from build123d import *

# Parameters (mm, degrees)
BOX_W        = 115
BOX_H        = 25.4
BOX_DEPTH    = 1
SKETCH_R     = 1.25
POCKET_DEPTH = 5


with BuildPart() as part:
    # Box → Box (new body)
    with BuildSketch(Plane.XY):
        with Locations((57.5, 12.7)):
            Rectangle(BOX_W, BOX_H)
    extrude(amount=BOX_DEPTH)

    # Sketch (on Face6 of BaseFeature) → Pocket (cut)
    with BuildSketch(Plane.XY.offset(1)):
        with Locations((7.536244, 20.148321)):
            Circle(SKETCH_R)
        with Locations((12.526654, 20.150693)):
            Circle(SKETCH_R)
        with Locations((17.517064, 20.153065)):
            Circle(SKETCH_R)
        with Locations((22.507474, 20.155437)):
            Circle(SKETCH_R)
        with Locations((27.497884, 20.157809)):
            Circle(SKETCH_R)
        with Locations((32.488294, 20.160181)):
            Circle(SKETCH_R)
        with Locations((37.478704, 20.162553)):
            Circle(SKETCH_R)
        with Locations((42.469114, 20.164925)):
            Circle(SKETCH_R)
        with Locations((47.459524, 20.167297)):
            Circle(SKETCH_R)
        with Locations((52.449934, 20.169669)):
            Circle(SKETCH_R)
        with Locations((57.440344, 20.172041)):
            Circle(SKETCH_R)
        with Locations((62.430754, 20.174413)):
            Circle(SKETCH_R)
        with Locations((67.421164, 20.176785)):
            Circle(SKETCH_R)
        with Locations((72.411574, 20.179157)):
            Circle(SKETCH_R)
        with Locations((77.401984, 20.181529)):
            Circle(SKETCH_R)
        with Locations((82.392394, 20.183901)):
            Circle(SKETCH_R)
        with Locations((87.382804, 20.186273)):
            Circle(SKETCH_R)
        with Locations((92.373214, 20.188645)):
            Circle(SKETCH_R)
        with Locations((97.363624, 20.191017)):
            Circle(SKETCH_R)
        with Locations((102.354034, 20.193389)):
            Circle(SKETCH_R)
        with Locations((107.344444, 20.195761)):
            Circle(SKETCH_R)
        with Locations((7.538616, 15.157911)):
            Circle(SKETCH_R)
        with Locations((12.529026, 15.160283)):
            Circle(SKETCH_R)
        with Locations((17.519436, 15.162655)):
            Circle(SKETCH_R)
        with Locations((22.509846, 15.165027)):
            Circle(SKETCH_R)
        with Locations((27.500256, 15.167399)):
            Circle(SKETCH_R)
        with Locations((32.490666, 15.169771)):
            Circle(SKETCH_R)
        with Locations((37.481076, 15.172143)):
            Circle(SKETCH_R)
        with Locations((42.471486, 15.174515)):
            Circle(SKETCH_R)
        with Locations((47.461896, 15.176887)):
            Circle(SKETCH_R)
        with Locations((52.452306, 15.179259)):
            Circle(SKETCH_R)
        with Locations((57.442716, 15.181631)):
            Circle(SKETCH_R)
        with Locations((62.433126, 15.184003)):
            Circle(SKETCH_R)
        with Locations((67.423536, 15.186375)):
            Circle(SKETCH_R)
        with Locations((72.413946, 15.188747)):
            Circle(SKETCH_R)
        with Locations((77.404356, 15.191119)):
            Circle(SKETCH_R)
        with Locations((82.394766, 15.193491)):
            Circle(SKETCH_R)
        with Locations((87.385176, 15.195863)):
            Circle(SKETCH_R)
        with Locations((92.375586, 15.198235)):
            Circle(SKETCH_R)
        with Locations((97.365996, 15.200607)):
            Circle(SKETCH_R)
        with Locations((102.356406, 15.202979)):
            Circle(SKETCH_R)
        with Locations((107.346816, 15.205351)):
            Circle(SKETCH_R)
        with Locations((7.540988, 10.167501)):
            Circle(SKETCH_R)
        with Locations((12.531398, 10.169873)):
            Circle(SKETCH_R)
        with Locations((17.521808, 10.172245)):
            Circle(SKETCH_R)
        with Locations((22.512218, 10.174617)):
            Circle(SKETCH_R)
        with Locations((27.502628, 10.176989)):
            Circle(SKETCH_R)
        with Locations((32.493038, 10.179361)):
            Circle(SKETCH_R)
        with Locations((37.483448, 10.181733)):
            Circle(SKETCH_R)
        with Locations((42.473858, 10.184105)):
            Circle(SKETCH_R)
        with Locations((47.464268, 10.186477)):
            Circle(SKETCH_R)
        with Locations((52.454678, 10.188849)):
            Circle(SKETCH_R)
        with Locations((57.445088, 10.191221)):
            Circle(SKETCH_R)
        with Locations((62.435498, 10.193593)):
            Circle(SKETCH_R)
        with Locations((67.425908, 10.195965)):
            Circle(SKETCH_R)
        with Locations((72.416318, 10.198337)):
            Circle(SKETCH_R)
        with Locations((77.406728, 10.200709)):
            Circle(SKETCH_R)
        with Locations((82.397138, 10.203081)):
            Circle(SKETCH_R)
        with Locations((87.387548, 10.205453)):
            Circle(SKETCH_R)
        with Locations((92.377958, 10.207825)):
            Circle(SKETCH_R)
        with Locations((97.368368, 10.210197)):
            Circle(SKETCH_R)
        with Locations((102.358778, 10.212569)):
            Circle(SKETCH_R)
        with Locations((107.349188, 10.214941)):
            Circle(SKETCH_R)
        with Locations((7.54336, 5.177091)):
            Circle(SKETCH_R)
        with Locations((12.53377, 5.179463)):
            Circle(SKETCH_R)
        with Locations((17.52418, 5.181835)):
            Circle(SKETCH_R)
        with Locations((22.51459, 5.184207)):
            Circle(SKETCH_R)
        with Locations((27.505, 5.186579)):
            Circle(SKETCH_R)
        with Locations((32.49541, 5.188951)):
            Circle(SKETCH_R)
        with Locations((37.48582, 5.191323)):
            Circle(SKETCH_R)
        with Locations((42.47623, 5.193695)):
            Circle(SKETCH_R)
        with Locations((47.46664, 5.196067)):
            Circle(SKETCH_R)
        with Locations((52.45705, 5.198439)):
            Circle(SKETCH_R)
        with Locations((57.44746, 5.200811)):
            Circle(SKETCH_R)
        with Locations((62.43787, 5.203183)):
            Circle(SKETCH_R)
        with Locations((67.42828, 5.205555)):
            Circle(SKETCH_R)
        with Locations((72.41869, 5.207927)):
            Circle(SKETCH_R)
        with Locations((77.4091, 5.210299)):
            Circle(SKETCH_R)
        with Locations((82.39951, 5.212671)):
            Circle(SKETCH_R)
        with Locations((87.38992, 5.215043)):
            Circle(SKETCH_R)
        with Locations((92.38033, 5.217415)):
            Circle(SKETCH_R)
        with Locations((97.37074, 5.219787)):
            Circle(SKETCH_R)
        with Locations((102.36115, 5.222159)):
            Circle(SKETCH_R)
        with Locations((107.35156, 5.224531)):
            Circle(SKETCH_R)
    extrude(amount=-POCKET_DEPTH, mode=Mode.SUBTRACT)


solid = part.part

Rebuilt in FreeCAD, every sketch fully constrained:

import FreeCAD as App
import Part
import Sketcher


def add_polygon(sketch, points):
    """Adds a closed chain of lines whose ends are joined by coincident constraints."""
    first, n = sketch.GeometryCount, len(points)
    for a, b in zip(points, points[1:] + points[:1]):
        sketch.addGeometry(Part.LineSegment(App.Vector(*a, 0), App.Vector(*b, 0)), False)
    for i in range(n):
        sketch.addConstraint(Sketcher.Constraint("Coincident", first + i, 2, first + (i + 1) % n, 1))

doc = App.newDocument("Part")
body = doc.addObject("PartDesign::Body", "Body")

# Sketch on XY plane
sketch1 = body.newObject("Sketcher::SketchObject", "Sketch")
sketch1.AttachmentSupport = (doc.getObject("XY_Plane"), [""])
sketch1.MapMode = "FlatFace"
add_polygon(sketch1, [(0, 25), (0, 0), (115, 0), (115, 25)])  # lines 0-3
sketch1.addConstraint([
    Sketcher.Constraint("Vertical", 0),
    Sketcher.Constraint("Horizontal", 1),
    Sketcher.Constraint("Vertical", 2),
    Sketcher.Constraint("Horizontal", 3),
    Sketcher.Constraint("Coincident", 0, 2, -1, 1),
    Sketcher.Constraint("DistanceX", 1, 1, 1, 2, 115.0),
    Sketcher.Constraint("DistanceY", 0, 2, 0, 1, 25.4),
])
pad1 = body.newObject("PartDesign::Pad", "Pad")
pad1.Profile = sketch1
pad1.Length = 1

# Sketch on XY plane
sketch2 = body.newObject("Sketcher::SketchObject", "Sketch001")
sketch2.AttachmentSupport = (doc.getObject("XY_Plane"), [""])
sketch2.MapMode = "FlatFace"
sketch2.AttachmentOffset = App.Placement(App.Vector(0, 0, 1), App.Rotation())
sketch2.addGeometry([
    Part.Circle(App.Vector(7.5, 20.1, 0), App.Vector(0, 0, 1), 1.2),  # 0
    Part.Circle(App.Vector(12.5, 20.2, 0), App.Vector(0, 0, 1), 1.2),  # 1
    Part.Circle(App.Vector(17.5, 20.2, 0), App.Vector(0, 0, 1), 1.2),  # 2
    Part.Circle(App.Vector(22.5, 20.2, 0), App.Vector(0, 0, 1), 1.2),  # 3
    Part.Circle(App.Vector(27.5, 20.2, 0), App.Vector(0, 0, 1), 1.2),  # 4
    Part.Circle(App.Vector(32.5, 20.2, 0), App.Vector(0, 0, 1), 1.2),  # 5
    Part.Circle(App.Vector(37.5, 20.2, 0), App.Vector(0, 0, 1), 1.2),  # 6
    Part.Circle(App.Vector(42.5, 20.2, 0), App.Vector(0, 0, 1), 1.2),  # 7
    Part.Circle(App.Vector(47.5, 20.2, 0), App.Vector(0, 0, 1), 1.2),  # 8
    Part.Circle(App.Vector(52.4, 20.2, 0), App.Vector(0, 0, 1), 1.2),  # 9
    Part.Circle(App.Vector(57.4, 20.2, 0), App.Vector(0, 0, 1), 1.2),  # 10
    Part.Circle(App.Vector(62.4, 20.2, 0), App.Vector(0, 0, 1), 1.2),  # 11
    Part.Circle(App.Vector(67.4, 20.2, 0), App.Vector(0, 0, 1), 1.2),  # 12
    Part.Circle(App.Vector(72.4, 20.2, 0), App.Vector(0, 0, 1), 1.2),  # 13
    Part.Circle(App.Vector(77.4, 20.2, 0), App.Vector(0, 0, 1), 1.2),  # 14
    Part.Circle(App.Vector(82.4, 20.2, 0), App.Vector(0, 0, 1), 1.2),  # 15
    Part.Circle(App.Vector(87.4, 20.2, 0), App.Vector(0, 0, 1), 1.2),  # 16
    Part.Circle(App.Vector(92.4, 20.2, 0), App.Vector(0, 0, 1), 1.2),  # 17
    Part.Circle(App.Vector(97.4, 20.2, 0), App.Vector(0, 0, 1), 1.2),  # 18
    Part.Circle(App.Vector(102.4, 20.2, 0), App.Vector(0, 0, 1), 1.2),  # 19
    Part.Circle(App.Vector(107.3, 20.2, 0), App.Vector(0, 0, 1), 1.2),  # 20
    Part.Circle(App.Vector(7.5, 15.2, 0), App.Vector(0, 0, 1), 1.2),  # 21
    Part.Circle(App.Vector(12.5, 15.2, 0), App.Vector(0, 0, 1), 1.2),  # 22
    Part.Circle(App.Vector(17.5, 15.2, 0), App.Vector(0, 0, 1), 1.2),  # 23
    Part.Circle(App.Vector(22.5, 15.2, 0), App.Vector(0, 0, 1), 1.2),  # 24
    Part.Circle(App.Vector(27.5, 15.2, 0), App.Vector(0, 0, 1), 1.2),  # 25
    Part.Circle(App.Vector(32.5, 15.2, 0), App.Vector(0, 0, 1), 1.2),  # 26
    Part.Circle(App.Vector(37.5, 15.2, 0), App.Vector(0, 0, 1), 1.2),  # 27
    Part.Circle(App.Vector(42.5, 15.2, 0), App.Vector(0, 0, 1), 1.2),  # 28
    Part.Circle(App.Vector(47.5, 15.2, 0), App.Vector(0, 0, 1), 1.2),  # 29
    Part.Circle(App.Vector(52.5, 15.2, 0), App.Vector(0, 0, 1), 1.2),  # 30
    Part.Circle(App.Vector(57.4, 15.2, 0), App.Vector(0, 0, 1), 1.2),  # 31
    Part.Circle(App.Vector(62.4, 15.2, 0), App.Vector(0, 0, 1), 1.2),  # 32
    Part.Circle(App.Vector(67.4, 15.2, 0), App.Vector(0, 0, 1), 1.2),  # 33
    Part.Circle(App.Vector(72.4, 15.2, 0), App.Vector(0, 0, 1), 1.2),  # 34
    Part.Circle(App.Vector(77.4, 15.2, 0), App.Vector(0, 0, 1), 1.2),  # 35
    Part.Circle(App.Vector(82.4, 15.2, 0), App.Vector(0, 0, 1), 1.2),  # 36
    Part.Circle(App.Vector(87.4, 15.2, 0), App.Vector(0, 0, 1), 1.2),  # 37
    Part.Circle(App.Vector(92.4, 15.2, 0), App.Vector(0, 0, 1), 1.2),  # 38
    Part.Circle(App.Vector(97.4, 15.2, 0), App.Vector(0, 0, 1), 1.2),  # 39
    Part.Circle(App.Vector(102.4, 15.2, 0), App.Vector(0, 0, 1), 1.2),  # 40
    Part.Circle(App.Vector(107.3, 15.2, 0), App.Vector(0, 0, 1), 1.2),  # 41
    Part.Circle(App.Vector(7.5, 10.2, 0), App.Vector(0, 0, 1), 1.2),  # 42
    Part.Circle(App.Vector(12.5, 10.2, 0), App.Vector(0, 0, 1), 1.2),  # 43
    Part.Circle(App.Vector(17.5, 10.2, 0), App.Vector(0, 0, 1), 1.2),  # 44
    Part.Circle(App.Vector(22.5, 10.2, 0), App.Vector(0, 0, 1), 1.2),  # 45
    Part.Circle(App.Vector(27.5, 10.2, 0), App.Vector(0, 0, 1), 1.2),  # 46
    Part.Circle(App.Vector(32.5, 10.2, 0), App.Vector(0, 0, 1), 1.2),  # 47
    Part.Circle(App.Vector(37.5, 10.2, 0), App.Vector(0, 0, 1), 1.2),  # 48
    Part.Circle(App.Vector(42.5, 10.2, 0), App.Vector(0, 0, 1), 1.2),  # 49
    Part.Circle(App.Vector(47.5, 10.2, 0), App.Vector(0, 0, 1), 1.2),  # 50
    Part.Circle(App.Vector(52.5, 10.2, 0), App.Vector(0, 0, 1), 1.2),  # 51
    Part.Circle(App.Vector(57.4, 10.2, 0), App.Vector(0, 0, 1), 1.2),  # 52
    Part.Circle(App.Vector(62.4, 10.2, 0), App.Vector(0, 0, 1), 1.2),  # 53
    Part.Circle(App.Vector(67.4, 10.2, 0), App.Vector(0, 0, 1), 1.2),  # 54
    Part.Circle(App.Vector(72.4, 10.2, 0), App.Vector(0, 0, 1), 1.2),  # 55
    Part.Circle(App.Vector(77.4, 10.2, 0), App.Vector(0, 0, 1), 1.2),  # 56
    Part.Circle(App.Vector(82.4, 10.2, 0), App.Vector(0, 0, 1), 1.2),  # 57
    Part.Circle(App.Vector(87.4, 10.2, 0), App.Vector(0, 0, 1), 1.2),  # 58
    Part.Circle(App.Vector(92.4, 10.2, 0), App.Vector(0, 0, 1), 1.2),  # 59
    Part.Circle(App.Vector(97.4, 10.2, 0), App.Vector(0, 0, 1), 1.2),  # 60
    Part.Circle(App.Vector(102.4, 10.2, 0), App.Vector(0, 0, 1), 1.2),  # 61
    Part.Circle(App.Vector(107.3, 10.2, 0), App.Vector(0, 0, 1), 1.2),  # 62
    Part.Circle(App.Vector(7.5, 5.2, 0), App.Vector(0, 0, 1), 1.2),  # 63
    Part.Circle(App.Vector(12.5, 5.2, 0), App.Vector(0, 0, 1), 1.2),  # 64
    Part.Circle(App.Vector(17.5, 5.2, 0), App.Vector(0, 0, 1), 1.2),  # 65
    Part.Circle(App.Vector(22.5, 5.2, 0), App.Vector(0, 0, 1), 1.2),  # 66
    Part.Circle(App.Vector(27.5, 5.2, 0), App.Vector(0, 0, 1), 1.2),  # 67
    Part.Circle(App.Vector(32.5, 5.2, 0), App.Vector(0, 0, 1), 1.2),  # 68
    Part.Circle(App.Vector(37.5, 5.2, 0), App.Vector(0, 0, 1), 1.2),  # 69
    Part.Circle(App.Vector(42.5, 5.2, 0), App.Vector(0, 0, 1), 1.2),  # 70
    Part.Circle(App.Vector(47.5, 5.2, 0), App.Vector(0, 0, 1), 1.2),  # 71
    Part.Circle(App.Vector(52.5, 5.2, 0), App.Vector(0, 0, 1), 1.2),  # 72
    Part.Circle(App.Vector(57.4, 5.2, 0), App.Vector(0, 0, 1), 1.2),  # 73
    Part.Circle(App.Vector(62.4, 5.2, 0), App.Vector(0, 0, 1), 1.2),  # 74
    Part.Circle(App.Vector(67.4, 5.2, 0), App.Vector(0, 0, 1), 1.2),  # 75
    Part.Circle(App.Vector(72.4, 5.2, 0), App.Vector(0, 0, 1), 1.2),  # 76
    Part.Circle(App.Vector(77.4, 5.2, 0), App.Vector(0, 0, 1), 1.2),  # 77
    Part.Circle(App.Vector(82.4, 5.2, 0), App.Vector(0, 0, 1), 1.2),  # 78
    Part.Circle(App.Vector(87.4, 5.2, 0), App.Vector(0, 0, 1), 1.2),  # 79
    Part.Circle(App.Vector(92.4, 5.2, 0), App.Vector(0, 0, 1), 1.2),  # 80
    Part.Circle(App.Vector(97.4, 5.2, 0), App.Vector(0, 0, 1), 1.2),  # 81
    Part.Circle(App.Vector(102.4, 5.2, 0), App.Vector(0, 0, 1), 1.2),  # 82
    Part.Circle(App.Vector(107.4, 5.2, 0), App.Vector(0, 0, 1), 1.2),  # 83
], False)
sketch2.addConstraint([
    Sketcher.Constraint("Equal", 0, 1),
    Sketcher.Constraint("Equal", 1, 2),
    Sketcher.Constraint("Equal", 2, 3),
    Sketcher.Constraint("Equal", 3, 4),
    Sketcher.Constraint("Equal", 4, 5),
    Sketcher.Constraint("Equal", 5, 6),
    Sketcher.Constraint("Equal", 6, 7),
    Sketcher.Constraint("Equal", 7, 8),
    Sketcher.Constraint("Equal", 8, 9),
    Sketcher.Constraint("Equal", 9, 10),
    Sketcher.Constraint("Equal", 10, 11),
    Sketcher.Constraint("Equal", 11, 12),
    Sketcher.Constraint("Equal", 12, 13),
    Sketcher.Constraint("Equal", 13, 14),
    Sketcher.Constraint("Equal", 14, 15),
    Sketcher.Constraint("Equal", 15, 16),
    Sketcher.Constraint("Equal", 16, 17),
    Sketcher.Constraint("Equal", 17, 18),
    Sketcher.Constraint("Equal", 18, 19),
    Sketcher.Constraint("Equal", 19, 20),
    Sketcher.Constraint("Equal", 20, 21),
    Sketcher.Constraint("Equal", 21, 22),
    Sketcher.Constraint("Equal", 22, 23),
    Sketcher.Constraint("Equal", 23, 24),
    Sketcher.Constraint("Equal", 24, 25),
    Sketcher.Constraint("Equal", 25, 26),
    Sketcher.Constraint("Equal", 26, 27),
    Sketcher.Constraint("Equal", 27, 28),
    Sketcher.Constraint("Equal", 28, 29),
    Sketcher.Constraint("Equal", 29, 30),
    Sketcher.Constraint("Equal", 30, 31),
    Sketcher.Constraint("Equal", 31, 32),
    Sketcher.Constraint("Equal", 32, 33),
    Sketcher.Constraint("Equal", 33, 34),
    Sketcher.Constraint("Equal", 34, 35),
    Sketcher.Constraint("Equal", 35, 36),
    Sketcher.Constraint("Equal", 36, 37),
    Sketcher.Constraint("Equal", 37, 38),
    Sketcher.Constraint("Equal", 38, 39),
    Sketcher.Constraint("Equal", 39, 40),
    Sketcher.Constraint("Equal", 40, 41),
    Sketcher.Constraint("Equal", 41, 42),
    Sketcher.Constraint("Equal", 42, 43),
    Sketcher.Constraint("Equal", 43, 44),
    Sketcher.Constraint("Equal", 44, 45),
    Sketcher.Constraint("Equal", 45, 46),
    Sketcher.Constraint("Equal", 46, 47),
    Sketcher.Constraint("Equal", 47, 48),
    Sketcher.Constraint("Equal", 48, 49),
    Sketcher.Constraint("Equal", 49, 50),
    Sketcher.Constraint("Equal", 50, 51),
    Sketcher.Constraint("Equal", 51, 52),
    Sketcher.Constraint("Equal", 52, 53),
    Sketcher.Constraint("Equal", 53, 54),
    Sketcher.Constraint("Equal", 54, 55),
    Sketcher.Constraint("Equal", 55, 56),
    Sketcher.Constraint("Equal", 56, 57),
    Sketcher.Constraint("Equal", 57, 58),
    Sketcher.Constraint("Equal", 58, 59),
    Sketcher.Constraint("Equal", 59, 60),
    Sketcher.Constraint("Equal", 60, 61),
    Sketcher.Constraint("Equal", 61, 62),
    Sketcher.Constraint("Equal", 62, 63),
    Sketcher.Constraint("Equal", 63, 64),
    Sketcher.Constraint("Equal", 64, 65),
    Sketcher.Constraint("Equal", 65, 66),
    Sketcher.Constraint("Equal", 66, 67),
    Sketcher.Constraint("Equal", 67, 68),
    Sketcher.Constraint("Equal", 68, 69),
    Sketcher.Constraint("Equal", 69, 70),
    Sketcher.Constraint("Equal", 70, 71),
    Sketcher.Constraint("Equal", 71, 72),
    Sketcher.Constraint("Equal", 72, 73),
    Sketcher.Constraint("Equal", 73, 74),
    Sketcher.Constraint("Equal", 74, 75),
    Sketcher.Constraint("Equal", 75, 76),
    Sketcher.Constraint("Equal", 76, 77),
    Sketcher.Constraint("Equal", 77, 78),
    Sketcher.Constraint("Equal", 78, 79),
    Sketcher.Constraint("Equal", 79, 80),
    Sketcher.Constraint("Equal", 80, 81),
    Sketcher.Constraint("Equal", 81, 82),
    Sketcher.Constraint("Equal", 82, 83),
    Sketcher.Constraint("Diameter", 0, 2.5),
    Sketcher.Constraint("DistanceX", -1, 1, 67, 3, 27.505),
    Sketcher.Constraint("DistanceY", -1, 1, 15, 3, 20.183901),
    Sketcher.Constraint("DistanceY", -1, 1, 25, 3, 15.167399),
    Sketcher.Constraint("DistanceY", -1, 1, 42, 3, 10.167501),
    Sketcher.Constraint("DistanceX", -1, 1, 53, 3, 62.435498),
    Sketcher.Constraint("DistanceX", -1, 1, 77, 3, 77.4091),
    Sketcher.Constraint("DistanceY", -1, 1, 77, 3, 5.210299),
    Sketcher.Constraint("DistanceY", -1, 1, 0, 3, 20.148321),
    Sketcher.Constraint("DistanceY", -1, 1, 4, 3, 20.157809),
    Sketcher.Constraint("DistanceY", -1, 1, 5, 3, 20.160181),
    Sketcher.Constraint("DistanceY", -1, 1, 9, 3, 20.169669),
    Sketcher.Constraint("DistanceY", -1, 1, 10, 3, 20.172041),
    Sketcher.Constraint("DistanceY", -1, 1, 14, 3, 20.181529),
    Sketcher.Constraint("DistanceY", -1, 1, 19, 3, 20.193389),
    Sketcher.Constraint("DistanceY", -1, 1, 20, 3, 20.195761),
    Sketcher.Constraint("DistanceY", -1, 1, 21, 3, 15.157911),
    Sketcher.Constraint("DistanceY", -1, 1, 26, 3, 15.169771),
    Sketcher.Constraint("DistanceY", -1, 1, 30, 3, 15.179259),
    Sketcher.Constraint("DistanceY", -1, 1, 31, 3, 15.181631),
    Sketcher.Constraint("DistanceY", -1, 1, 35, 3, 15.191119),
    Sketcher.Constraint("DistanceY", -1, 1, 36, 3, 15.193491),
    Sketcher.Constraint("DistanceY", -1, 1, 40, 3, 15.202979),
    Sketcher.Constraint("DistanceY", -1, 1, 41, 3, 15.205351),
    Sketcher.Constraint("DistanceX", -1, 1, 44, 3, 17.521808),
    Sketcher.Constraint("DistanceX", -1, 1, 45, 3, 22.512218),
    Sketcher.Constraint("DistanceX", -1, 1, 46, 3, 27.502628),
    Sketcher.Constraint("DistanceY", -1, 1, 46, 3, 10.176989),
    Sketcher.Constraint("DistanceY", -1, 1, 47, 3, 10.179361),
    Sketcher.Constraint("DistanceX", -1, 1, 48, 3, 37.483448),
    Sketcher.Constraint("DistanceY", -1, 1, 51, 3, 10.188849),
    Sketcher.Constraint("DistanceY", -1, 1, 52, 3, 10.191221),
    Sketcher.Constraint("DistanceX", -1, 1, 54, 3, 67.425908),
    Sketcher.Constraint("DistanceX", -1, 1, 55, 3, 72.416318),
    Sketcher.Constraint("DistanceX", -1, 1, 56, 3, 77.406728),
    Sketcher.Constraint("DistanceY", -1, 1, 56, 3, 10.200709),
    Sketcher.Constraint("DistanceX", -1, 1, 57, 3, 82.397138),
    Sketcher.Constraint("DistanceY", -1, 1, 57, 3, 10.203081),
    Sketcher.Constraint("DistanceX", -1, 1, 59, 3, 92.377958),
    Sketcher.Constraint("DistanceX", -1, 1, 60, 3, 97.368368),
    Sketcher.Constraint("DistanceX", -1, 1, 61, 3, 102.358778),
    Sketcher.Constraint("DistanceY", -1, 1, 61, 3, 10.212569),
    Sketcher.Constraint("DistanceX", -1, 1, 62, 3, 107.349188),
    Sketcher.Constraint("DistanceY", -1, 1, 62, 3, 10.214941),
    Sketcher.Constraint("DistanceX", -1, 1, 63, 3, 7.54336),
    Sketcher.Constraint("DistanceY", -1, 1, 63, 3, 5.177091),
    Sketcher.Constraint("DistanceX", -1, 1, 64, 3, 12.53377),
    Sketcher.Constraint("DistanceX", -1, 1, 65, 3, 17.52418),
    Sketcher.Constraint("DistanceX", -1, 1, 66, 3, 22.51459),
    Sketcher.Constraint("DistanceY", -1, 1, 67, 3, 5.186579),
    Sketcher.Constraint("DistanceX", -1, 1, 68, 3, 32.49541),
    Sketcher.Constraint("DistanceY", -1, 1, 68, 3, 5.188951),
    Sketcher.Constraint("DistanceX", -1, 1, 69, 3, 37.48582),
    Sketcher.Constraint("DistanceX", -1, 1, 70, 3, 42.47623),
    Sketcher.Constraint("DistanceX", -1, 1, 71, 3, 47.46664),
    Sketcher.Constraint("DistanceX", -1, 1, 72, 3, 52.45705),
    Sketcher.Constraint("DistanceY", -1, 1, 72, 3, 5.198439),
    Sketcher.Constraint("DistanceX", -1, 1, 73, 3, 57.44746),
    Sketcher.Constraint("DistanceY", -1, 1, 73, 3, 5.200811),
    Sketcher.Constraint("DistanceX", -1, 1, 74, 3, 62.43787),
    Sketcher.Constraint("DistanceX", -1, 1, 75, 3, 67.42828),
    Sketcher.Constraint("DistanceX", -1, 1, 76, 3, 72.41869),
    Sketcher.Constraint("DistanceX", -1, 1, 78, 3, 82.39951),
    Sketcher.Constraint("DistanceY", -1, 1, 78, 3, 5.212671),
    Sketcher.Constraint("DistanceX", -1, 1, 79, 3, 87.38992),
    Sketcher.Constraint("DistanceX", -1, 1, 80, 3, 92.38033),
    Sketcher.Constraint("DistanceX", -1, 1, 81, 3, 97.37074),
    Sketcher.Constraint("DistanceX", -1, 1, 82, 3, 102.36115),
    Sketcher.Constraint("DistanceY", -1, 1, 82, 3, 5.222159),
    Sketcher.Constraint("DistanceX", -1, 1, 83, 3, 107.35156),
    Sketcher.Constraint("DistanceY", -1, 1, 83, 3, 5.224531),
    Sketcher.Constraint("DistanceX", -1, 1, 0, 3, 7.536244),
    Sketcher.Constraint("DistanceX", -1, 1, 1, 3, 12.526654),
    Sketcher.Constraint("DistanceY", -1, 1, 1, 3, 20.150693),
    Sketcher.Constraint("DistanceX", -1, 1, 2, 3, 17.517064),
    Sketcher.Constraint("DistanceY", -1, 1, 2, 3, 20.153065),
    Sketcher.Constraint("DistanceX", -1, 1, 3, 3, 22.507474),
    Sketcher.Constraint("DistanceY", -1, 1, 3, 3, 20.155437),
    Sketcher.Constraint("DistanceX", -1, 1, 4, 3, 27.497884),
    Sketcher.Constraint("DistanceX", -1, 1, 5, 3, 32.488294),
    Sketcher.Constraint("DistanceX", -1, 1, 6, 3, 37.478704),
    Sketcher.Constraint("DistanceY", -1, 1, 6, 3, 20.162553),
    Sketcher.Constraint("DistanceX", -1, 1, 7, 3, 42.469114),
    Sketcher.Constraint("DistanceY", -1, 1, 7, 3, 20.164925),
    Sketcher.Constraint("DistanceX", -1, 1, 8, 3, 47.459524),
    Sketcher.Constraint("DistanceY", -1, 1, 8, 3, 20.167297),
    Sketcher.Constraint("DistanceX", -1, 1, 9, 3, 52.449934),
    Sketcher.Constraint("DistanceX", -1, 1, 10, 3, 57.440344),
    Sketcher.Constraint("DistanceX", -1, 1, 11, 3, 62.430754),
    Sketcher.Constraint("DistanceY", -1, 1, 11, 3, 20.174413),
    Sketcher.Constraint("DistanceX", -1, 1, 12, 3, 67.421164),
    Sketcher.Constraint("DistanceY", -1, 1, 12, 3, 20.176785),
    Sketcher.Constraint("DistanceX", -1, 1, 13, 3, 72.411574),
    Sketcher.Constraint("DistanceY", -1, 1, 13, 3, 20.179157),
    Sketcher.Constraint("DistanceX", -1, 1, 14, 3, 77.401984),
    Sketcher.Constraint("DistanceX", -1, 1, 15, 3, 82.392394),
    Sketcher.Constraint("DistanceX", -1, 1, 16, 3, 87.382804),
    Sketcher.Constraint("DistanceY", -1, 1, 16, 3, 20.186273),
    Sketcher.Constraint("DistanceX", -1, 1, 17, 3, 92.373214),
    Sketcher.Constraint("DistanceY", -1, 1, 17, 3, 20.188645),
    Sketcher.Constraint("DistanceX", -1, 1, 18, 3, 97.363624),
    Sketcher.Constraint("DistanceY", -1, 1, 18, 3, 20.191017),
    Sketcher.Constraint("DistanceX", -1, 1, 19, 3, 102.354034),
    Sketcher.Constraint("DistanceX", -1, 1, 20, 3, 107.344444),
    Sketcher.Constraint("DistanceX", -1, 1, 21, 3, 7.538616),
    Sketcher.Constraint("DistanceX", -1, 1, 22, 3, 12.529026),
    Sketcher.Constraint("DistanceY", -1, 1, 22, 3, 15.160283),
    Sketcher.Constraint("DistanceX", -1, 1, 23, 3, 17.519436),
    Sketcher.Constraint("DistanceY", -1, 1, 23, 3, 15.162655),
    Sketcher.Constraint("DistanceX", -1, 1, 24, 3, 22.509846),
    Sketcher.Constraint("DistanceY", -1, 1, 24, 3, 15.165027),
    Sketcher.Constraint("DistanceX", -1, 1, 25, 3, 27.500256),
    Sketcher.Constraint("DistanceX", -1, 1, 26, 3, 32.490666),
    Sketcher.Constraint("DistanceX", -1, 1, 27, 3, 37.481076),
    Sketcher.Constraint("DistanceY", -1, 1, 27, 3, 15.172143),
    Sketcher.Constraint("DistanceX", -1, 1, 28, 3, 42.471486),
    Sketcher.Constraint("DistanceY", -1, 1, 28, 3, 15.174515),
    Sketcher.Constraint("DistanceX", -1, 1, 29, 3, 47.461896),
    Sketcher.Constraint("DistanceY", -1, 1, 29, 3, 15.176887),
    Sketcher.Constraint("DistanceX", -1, 1, 30, 3, 52.452306),
    Sketcher.Constraint("DistanceX", -1, 1, 31, 3, 57.442716),
    Sketcher.Constraint("DistanceX", -1, 1, 32, 3, 62.433126),
    Sketcher.Constraint("DistanceY", -1, 1, 32, 3, 15.184003),
    Sketcher.Constraint("DistanceX", -1, 1, 33, 3, 67.423536),
    Sketcher.Constraint("DistanceY", -1, 1, 33, 3, 15.186375),
    Sketcher.Constraint("DistanceX", -1, 1, 34, 3, 72.413946),
    Sketcher.Constraint("DistanceY", -1, 1, 34, 3, 15.188747),
    Sketcher.Constraint("DistanceX", -1, 1, 35, 3, 77.404356),
    Sketcher.Constraint("DistanceX", -1, 1, 36, 3, 82.394766),
    Sketcher.Constraint("DistanceX", -1, 1, 37, 3, 87.385176),
    Sketcher.Constraint("DistanceY", -1, 1, 37, 3, 15.195863),
    Sketcher.Constraint("DistanceX", -1, 1, 38, 3, 92.375586),
    Sketcher.Constraint("DistanceY", -1, 1, 38, 3, 15.198235),
    Sketcher.Constraint("DistanceX", -1, 1, 39, 3, 97.365996),
    Sketcher.Constraint("DistanceY", -1, 1, 39, 3, 15.200607),
    Sketcher.Constraint("DistanceX", -1, 1, 40, 3, 102.356406),
    Sketcher.Constraint("DistanceX", -1, 1, 41, 3, 107.346816),
    Sketcher.Constraint("DistanceX", -1, 1, 42, 3, 7.540988),
    Sketcher.Constraint("DistanceX", -1, 1, 43, 3, 12.531398),
    Sketcher.Constraint("DistanceY", -1, 1, 43, 3, 10.169873),
    Sketcher.Constraint("DistanceY", -1, 1, 44, 3, 10.172245),
    Sketcher.Constraint("DistanceY", -1, 1, 45, 3, 10.174617),
    Sketcher.Constraint("DistanceX", -1, 1, 47, 3, 32.493038),
    Sketcher.Constraint("DistanceY", -1, 1, 48, 3, 10.181733),
    Sketcher.Constraint("DistanceX", -1, 1, 49, 3, 42.473858),
    Sketcher.Constraint("DistanceY", -1, 1, 49, 3, 10.184105),
    Sketcher.Constraint("DistanceX", -1, 1, 50, 3, 47.464268),
    Sketcher.Constraint("DistanceY", -1, 1, 50, 3, 10.186477),
    Sketcher.Constraint("DistanceX", -1, 1, 51, 3, 52.454678),
    Sketcher.Constraint("DistanceX", -1, 1, 52, 3, 57.445088),
    Sketcher.Constraint("DistanceY", -1, 1, 53, 3, 10.193593),
    Sketcher.Constraint("DistanceY", -1, 1, 54, 3, 10.195965),
    Sketcher.Constraint("DistanceY", -1, 1, 55, 3, 10.198337),
    Sketcher.Constraint("DistanceX", -1, 1, 58, 3, 87.387548),
    Sketcher.Constraint("DistanceY", -1, 1, 58, 3, 10.205453),
    Sketcher.Constraint("DistanceY", -1, 1, 59, 3, 10.207825),
    Sketcher.Constraint("DistanceY", -1, 1, 60, 3, 10.210197),
    Sketcher.Constraint("DistanceY", -1, 1, 64, 3, 5.179463),
    Sketcher.Constraint("DistanceY", -1, 1, 65, 3, 5.181835),
    Sketcher.Constraint("DistanceY", -1, 1, 66, 3, 5.184207),
    Sketcher.Constraint("DistanceY", -1, 1, 69, 3, 5.191323),
    Sketcher.Constraint("DistanceY", -1, 1, 70, 3, 5.193695),
    Sketcher.Constraint("DistanceY", -1, 1, 71, 3, 5.196067),
    Sketcher.Constraint("DistanceY", -1, 1, 74, 3, 5.203183),
    Sketcher.Constraint("DistanceY", -1, 1, 75, 3, 5.205555),
    Sketcher.Constraint("DistanceY", -1, 1, 76, 3, 5.207927),
    Sketcher.Constraint("DistanceY", -1, 1, 79, 3, 5.215043),
    Sketcher.Constraint("DistanceY", -1, 1, 80, 3, 5.217415),
    Sketcher.Constraint("DistanceY", -1, 1, 81, 3, 5.219787),
])
pocket1 = body.newObject("PartDesign::Pocket", "Pocket")
pocket1.Profile = sketch2
pocket1.Length = 5

doc.recompute()
